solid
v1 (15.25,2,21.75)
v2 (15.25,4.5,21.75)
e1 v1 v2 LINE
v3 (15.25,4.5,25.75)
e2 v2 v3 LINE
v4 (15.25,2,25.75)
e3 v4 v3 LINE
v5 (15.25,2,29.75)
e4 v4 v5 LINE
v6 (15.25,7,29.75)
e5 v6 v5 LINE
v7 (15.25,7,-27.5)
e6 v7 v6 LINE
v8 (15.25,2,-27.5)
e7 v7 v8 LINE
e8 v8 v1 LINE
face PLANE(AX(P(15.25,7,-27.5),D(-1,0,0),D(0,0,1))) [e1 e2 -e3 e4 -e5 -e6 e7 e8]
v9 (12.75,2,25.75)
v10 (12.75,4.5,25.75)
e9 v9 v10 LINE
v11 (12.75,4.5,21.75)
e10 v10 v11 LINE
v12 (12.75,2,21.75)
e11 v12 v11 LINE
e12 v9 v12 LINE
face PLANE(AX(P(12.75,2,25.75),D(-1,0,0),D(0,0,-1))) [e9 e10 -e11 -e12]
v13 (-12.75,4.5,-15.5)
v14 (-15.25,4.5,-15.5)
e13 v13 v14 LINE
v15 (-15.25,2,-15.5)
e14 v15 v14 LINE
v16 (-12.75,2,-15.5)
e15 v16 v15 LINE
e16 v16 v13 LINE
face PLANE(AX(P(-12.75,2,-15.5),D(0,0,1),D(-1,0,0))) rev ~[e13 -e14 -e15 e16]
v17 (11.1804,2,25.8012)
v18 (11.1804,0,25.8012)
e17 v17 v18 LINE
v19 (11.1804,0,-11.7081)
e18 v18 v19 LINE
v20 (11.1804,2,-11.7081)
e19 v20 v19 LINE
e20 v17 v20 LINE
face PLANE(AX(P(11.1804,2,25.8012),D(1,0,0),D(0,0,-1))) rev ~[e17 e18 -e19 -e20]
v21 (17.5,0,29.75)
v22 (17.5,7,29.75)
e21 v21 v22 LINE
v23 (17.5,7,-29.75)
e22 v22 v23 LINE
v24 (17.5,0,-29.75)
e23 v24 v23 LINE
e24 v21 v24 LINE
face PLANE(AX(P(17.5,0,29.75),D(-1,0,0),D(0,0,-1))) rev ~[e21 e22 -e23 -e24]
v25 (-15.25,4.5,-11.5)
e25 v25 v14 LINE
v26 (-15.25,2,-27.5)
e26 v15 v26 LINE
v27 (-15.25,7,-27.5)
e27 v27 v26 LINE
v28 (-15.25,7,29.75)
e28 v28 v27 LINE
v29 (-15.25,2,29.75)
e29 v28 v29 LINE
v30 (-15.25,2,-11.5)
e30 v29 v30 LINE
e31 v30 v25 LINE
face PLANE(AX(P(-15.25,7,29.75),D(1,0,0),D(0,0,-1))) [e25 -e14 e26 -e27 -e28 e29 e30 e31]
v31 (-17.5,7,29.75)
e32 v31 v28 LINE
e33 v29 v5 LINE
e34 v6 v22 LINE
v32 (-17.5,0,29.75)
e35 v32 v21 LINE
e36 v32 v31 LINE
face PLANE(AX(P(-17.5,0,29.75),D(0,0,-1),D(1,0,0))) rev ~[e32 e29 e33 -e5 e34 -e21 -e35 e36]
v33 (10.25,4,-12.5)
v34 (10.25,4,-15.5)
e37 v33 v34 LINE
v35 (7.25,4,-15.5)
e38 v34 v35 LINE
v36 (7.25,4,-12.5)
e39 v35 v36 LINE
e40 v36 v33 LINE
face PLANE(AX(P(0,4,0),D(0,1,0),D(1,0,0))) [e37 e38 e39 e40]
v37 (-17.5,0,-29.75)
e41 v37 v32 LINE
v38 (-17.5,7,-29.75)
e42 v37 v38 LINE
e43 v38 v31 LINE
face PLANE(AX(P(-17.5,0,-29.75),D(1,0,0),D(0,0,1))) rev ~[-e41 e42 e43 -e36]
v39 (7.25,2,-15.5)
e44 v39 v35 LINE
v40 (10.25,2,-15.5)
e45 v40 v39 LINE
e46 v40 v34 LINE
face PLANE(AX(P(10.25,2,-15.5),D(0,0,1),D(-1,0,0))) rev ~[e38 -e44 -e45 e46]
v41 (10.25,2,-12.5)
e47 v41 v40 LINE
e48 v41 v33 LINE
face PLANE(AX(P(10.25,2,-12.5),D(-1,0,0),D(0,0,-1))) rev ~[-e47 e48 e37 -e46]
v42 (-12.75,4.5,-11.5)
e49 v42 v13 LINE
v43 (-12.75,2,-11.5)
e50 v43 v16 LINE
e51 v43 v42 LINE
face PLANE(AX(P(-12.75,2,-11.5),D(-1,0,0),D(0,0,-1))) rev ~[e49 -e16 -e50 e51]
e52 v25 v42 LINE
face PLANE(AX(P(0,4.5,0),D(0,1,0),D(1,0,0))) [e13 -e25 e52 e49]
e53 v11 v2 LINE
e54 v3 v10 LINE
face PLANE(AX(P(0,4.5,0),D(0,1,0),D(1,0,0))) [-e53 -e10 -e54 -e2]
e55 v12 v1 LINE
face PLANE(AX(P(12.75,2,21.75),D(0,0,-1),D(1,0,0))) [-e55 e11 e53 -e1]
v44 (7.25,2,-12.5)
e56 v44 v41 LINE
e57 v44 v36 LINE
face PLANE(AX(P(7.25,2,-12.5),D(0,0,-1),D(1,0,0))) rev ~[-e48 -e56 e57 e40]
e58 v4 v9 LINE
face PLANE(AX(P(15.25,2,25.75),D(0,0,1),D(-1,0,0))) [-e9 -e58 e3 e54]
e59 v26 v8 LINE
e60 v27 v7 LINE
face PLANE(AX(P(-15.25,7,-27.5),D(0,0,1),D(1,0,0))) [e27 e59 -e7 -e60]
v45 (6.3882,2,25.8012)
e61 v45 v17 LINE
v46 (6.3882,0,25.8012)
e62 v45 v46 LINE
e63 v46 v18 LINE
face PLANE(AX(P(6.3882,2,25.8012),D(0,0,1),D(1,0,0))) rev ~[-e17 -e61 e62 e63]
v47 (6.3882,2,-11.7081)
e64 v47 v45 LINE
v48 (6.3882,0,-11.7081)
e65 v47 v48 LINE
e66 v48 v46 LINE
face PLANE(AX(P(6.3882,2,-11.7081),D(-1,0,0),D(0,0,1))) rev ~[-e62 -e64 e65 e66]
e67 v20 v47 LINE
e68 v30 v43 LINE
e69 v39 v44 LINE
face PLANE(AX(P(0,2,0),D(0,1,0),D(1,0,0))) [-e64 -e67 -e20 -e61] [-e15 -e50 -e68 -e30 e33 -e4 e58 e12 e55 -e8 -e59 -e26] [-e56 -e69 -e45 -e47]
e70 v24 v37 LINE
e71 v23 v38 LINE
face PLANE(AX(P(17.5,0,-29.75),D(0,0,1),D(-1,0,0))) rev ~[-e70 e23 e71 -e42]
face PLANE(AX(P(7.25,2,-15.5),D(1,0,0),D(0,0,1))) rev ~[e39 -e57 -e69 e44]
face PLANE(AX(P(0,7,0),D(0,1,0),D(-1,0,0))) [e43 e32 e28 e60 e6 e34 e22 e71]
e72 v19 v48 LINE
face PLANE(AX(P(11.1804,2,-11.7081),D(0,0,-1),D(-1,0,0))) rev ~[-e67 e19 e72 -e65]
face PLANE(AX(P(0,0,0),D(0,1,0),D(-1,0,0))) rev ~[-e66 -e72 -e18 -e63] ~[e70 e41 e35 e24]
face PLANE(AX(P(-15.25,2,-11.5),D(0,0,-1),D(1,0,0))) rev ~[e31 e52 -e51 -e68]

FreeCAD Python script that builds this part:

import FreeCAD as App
import Part
import Sketcher
Q = App.Units.Quantity

doc = App.newDocument("Part")
params = doc.addObject("Spreadsheet::Sheet", "Params")
for row, (alias, value) in enumerate([
    ("sketch1_width", "35 mm"),
    ("sketch1_height", "59.5 mm"),
    ("pad1_length", "7 mm"),
    ("sketch2_width", "30.5 mm"),
    ("sketch2_height", "57.25 mm"),
    ("pocket1_length", "5 mm"),
    ("sketch3_width", "3 mm"),
    ("pad2_length", "2 mm"),
    ("sketch4_height", "4 mm"),
    ("sketch4_width", "2.5 mm"),
    ("pad3_length", "2.5 mm"),
], start=1):
    params.set(f"A{row}", alias)
    params.set(f"B{row}", "=" + value)
    params.setAlias(f"B{row}", alias)

body = doc.addObject("PartDesign::Body", "Body")

# Sketch on XZ plane
sketch1 = body.newObject("Sketcher::SketchObject", "Sketch")
sketch1.AttachmentSupport = (doc.getObject("XZ_Plane"), [""])
sketch1.MapMode = "FlatFace"
sketch1.addGeometry([
    Part.LineSegment(App.Vector(18, 30, 0), App.Vector(18, -30, 0)),
    Part.LineSegment(App.Vector(18, -30, 0), App.Vector(-18, -30, 0)),
    Part.LineSegment(App.Vector(-18, -30, 0), App.Vector(-18, 30, 0)),
    Part.LineSegment(App.Vector(-18, 30, 0), App.Vector(18, 30, 0)),
], False)
sketch1.addConstraint([
    Sketcher.Constraint("Coincident", 0, 2, 1, 1),
    Sketcher.Constraint("Coincident", 1, 2, 2, 1),
    Sketcher.Constraint("Coincident", 2, 2, 3, 1),
    Sketcher.Constraint("Coincident", 3, 2, 0, 1),
    Sketcher.Constraint("Vertical", 0),
    Sketcher.Constraint("Horizontal", 1),
    Sketcher.Constraint("Vertical", 2),
    Sketcher.Constraint("Horizontal", 3),
    Sketcher.Constraint("Symmetric", 0, 2, 2, 2, -1, 1),
    Sketcher.Constraint("DistanceX", 1, 2, 1, 1, Q("35 mm")),
    Sketcher.Constraint("DistanceY", 0, 2, 0, 1, Q("59.5 mm")),
])
sketch1.setExpression("Constraints[9]", "Params.sketch1_width")
sketch1.setExpression("Constraints[10]", "Params.sketch1_height")
pad1 = body.newObject("PartDesign::Pad", "Pad")
pad1.Profile = sketch1
pad1.setExpression("Length", "Params.pad1_length")
pad1.Reversed = True

# Sketch on XZ plane
sketch2 = body.newObject("Sketcher::SketchObject", "Sketch001")
sketch2.AttachmentSupport = (doc.getObject("XZ_Plane"), [""])
sketch2.MapMode = "FlatFace"
sketch2.AttachmentOffset = App.Placement(App.Vector(0, 0, -7), App.Rotation())
sketch2.addGeometry([
    Part.LineSegment(App.Vector(-15, -28, 0), App.Vector(-15, 30, 0)),
    Part.LineSegment(App.Vector(-15, 30, 0), App.Vector(15, 30, 0)),
    Part.LineSegment(App.Vector(15, 30, 0), App.Vector(15, -28, 0)),
    Part.LineSegment(App.Vector(15, -28, 0), App.Vector(-15, -28, 0)),
], False)
sketch2.addConstraint([
    Sketcher.Constraint("Coincident", 0, 2, 1, 1),
    Sketcher.Constraint("Coincident", 1, 2, 2, 1),
    Sketcher.Constraint("Coincident", 2, 2, 3, 1),
    Sketcher.Constraint("Coincident", 3, 2, 0, 1),
    Sketcher.Constraint("Vertical", 0),
    Sketcher.Constraint("Horizontal", 1),
    Sketcher.Constraint("Vertical", 2),
    Sketcher.Constraint("Horizontal", 3),
    Sketcher.Constraint("DistanceX", 1, 1, 1, 2, Q("30.5 mm")),
    Sketcher.Constraint("DistanceY", 0, 1, 0, 2, Q("57.25 mm")),
    Sketcher.Constraint("DistanceY", 2, 2, -1, 1, Q("27.5 mm")),
    Sketcher.Constraint("DistanceX", 0, 2, -1, 1, Q("15.25 mm")),
])
sketch2.setExpression("Constraints[8]", "Params.sketch2_width")
sketch2.setExpression("Constraints[9]", "Params.sketch2_height")
pocket1 = body.newObject("PartDesign::Pocket", "Pocket")
pocket1.Profile = sketch2
pocket1.setExpression("Length", "Params.pocket1_length")
pocket1.Reversed = True

# Sketch on XZ plane
sketch3 = body.newObject("Sketcher::SketchObject", "Sketch002")
sketch3.AttachmentSupport = (doc.getObject("XZ_Plane"), [""])
sketch3.MapMode = "FlatFace"
sketch3.AttachmentOffset = App.Placement(App.Vector(0, 0, -2), App.Rotation())
sketch3.addGeometry([
    Part.LineSegment(App.Vector(10.2, -12.5, 0), App.Vector(10.2, -15.5, 0)),
    Part.LineSegment(App.Vector(10.2, -15.5, 0), App.Vector(7.2, -15.5, 0)),
    Part.LineSegment(App.Vector(7.2, -15.5, 0), App.Vector(7.2, -12.5, 0)),
    Part.LineSegment(App.Vector(7.2, -12.5, 0), App.Vector(10.2, -12.5, 0)),
], False)
sketch3.addConstraint([
    Sketcher.Constraint("Coincident", 0, 2, 1, 1),
    Sketcher.Constraint("Coincident", 1, 2, 2, 1),
    Sketcher.Constraint("Coincident", 2, 2, 3, 1),
    Sketcher.Constraint("Coincident", 3, 2, 0, 1),
    Sketcher.Constraint("Vertical", 0),
    Sketcher.Constraint("Horizontal", 1),
    Sketcher.Constraint("Vertical", 2),
    Sketcher.Constraint("Horizontal", 3),
    Sketcher.Constraint("Equal", 3, 0),
    Sketcher.Constraint("DistanceX", 1, 2, 1, 1, Q("3 mm")),
    Sketcher.Constraint("DistanceY", 0, 2, -1, 1, Q("15.5 mm")),
    Sketcher.Constraint("DistanceX", -1, 1, 0, 2, Q("10.25 mm")),
])
sketch3.setExpression("Constraints[9]", "Params.sketch3_width")
pad2 = body.newObject("PartDesign::Pad", "Pad001")
pad2.Profile = sketch3
pad2.setExpression("Length", "Params.pad2_length")
pad2.Reversed = True

# Sketch on XZ plane
sketch4 = body.newObject("Sketcher::SketchObject", "Sketch003")
sketch4.AttachmentSupport = (doc.getObject("XZ_Plane"), [""])
sketch4.MapMode = "FlatFace"
sketch4.AttachmentOffset = App.Placement(App.Vector(0, 0, -2), App.Rotation())
sketch4.addGeometry([
    Part.LineSegment(App.Vector(-12.8, -15.5, 0), App.Vector(-15.2, -15.5, 0)),  # 0
    Part.LineSegment(App.Vector(-15.2, -15.5, 0), App.Vector(-15.2, -11.5, 0)),  # 1
    Part.LineSegment(App.Vector(-15.2, -11.5, 0), App.Vector(-12.8, -11.5, 0)),  # 2
    Part.LineSegment(App.Vector(-12.8, -11.5, 0), App.Vector(-12.8, -15.5, 0)),  # 3
    Part.LineSegment(App.Vector(15.2, 25.8, 0), App.Vector(15.2, 21.8, 0)),  # 4
    Part.LineSegment(App.Vector(15.2, 21.8, 0), App.Vector(12.8, 21.8, 0)),  # 5
    Part.LineSegment(App.Vector(12.8, 21.8, 0), App.Vector(12.8, 25.8, 0)),  # 6
    Part.LineSegment(App.Vector(12.8, 25.8, 0), App.Vector(15.2, 25.8, 0)),  # 7
], False)
sketch4.addConstraint([
    Sketcher.Constraint("Coincident", 0, 2, 1, 1),
    Sketcher.Constraint("Coincident", 1, 2, 2, 1),
    Sketcher.Constraint("Coincident", 2, 2, 3, 1),
    Sketcher.Constraint("Coincident", 3, 2, 0, 1),
    Sketcher.Constraint("Coincident", 4, 2, 5, 1),
    Sketcher.Constraint("Coincident", 5, 2, 6, 1),
    Sketcher.Constraint("Coincident", 6, 2, 7, 1),
    Sketcher.Constraint("Coincident", 7, 2, 4, 1),
    Sketcher.Constraint("Horizontal", 0),
    Sketcher.Constraint("Vertical", 1),
    Sketcher.Constraint("Horizontal", 2),
    Sketcher.Constraint("Vertical", 3),
    Sketcher.Constraint("Vertical", 4),
    Sketcher.Constraint("Horizontal", 5),
    Sketcher.Constraint("Vertical", 6),
    Sketcher.Constraint("Horizontal", 7),
    Sketcher.Constraint("Equal", 2, 5),
    Sketcher.Constraint("Equal", 3, 4),
    Sketcher.Constraint("DistanceY", 1, 1, 1, 2, Q("4 mm")),
    Sketcher.Constraint("DistanceX", 0, 2, 0, 1, Q("2.5 mm")),
    Sketcher.Constraint("DistanceX", 2, 2, 4, 2, Q("28 mm")),
    Sketcher.Constraint("DistanceY", 0, 2, -1, 1, Q("15.5 mm")),
    Sketcher.Constraint("DistanceX", 0, 2, -1, 1, Q("15.25 mm")),
    Sketcher.Constraint("DistanceY", -1, 1, 4, 2, Q("21.75 mm")),
])
sketch4.setExpression("Constraints[18]", "Params.sketch4_height")
sketch4.setExpression("Constraints[19]", "Params.sketch4_width")
pad3 = body.newObject("PartDesign::Pad", "Pad002")
pad3.Profile = sketch4
pad3.setExpression("Length", "Params.pad3_length")
pad3.Reversed = True

# Sketch on XZ plane
sketch5 = body.newObject("Sketcher::SketchObject", "Sketch004")
sketch5.AttachmentSupport = (doc.getObject("XZ_Plane"), [""])
sketch5.MapMode = "FlatFace"
sketch5.AttachmentOffset = App.Placement(App.Vector(0, 0, -2), App.Rotation())
sketch5.addGeometry([
    Part.LineSegment(App.Vector(11.2, 25.8, 0), App.Vector(11.2, -11.7, 0)),
    Part.LineSegment(App.Vector(11.2, -11.7, 0), App.Vector(6.4, -11.7, 0)),
    Part.LineSegment(App.Vector(6.4, -11.7, 0), App.Vector(6.4, 25.8, 0)),
    Part.LineSegment(App.Vector(6.4, 25.8, 0), App.Vector(11.2, 25.8, 0)),
], False)
sketch5.addConstraint([
    Sketcher.Constraint("Coincident", 0, 2, 1, 1),
    Sketcher.Constraint("Coincident", 1, 2, 2, 1),
    Sketcher.Constraint("Coincident", 2, 2, 3, 1),
    Sketcher.Constraint("Coincident", 3, 2, 0, 1),
    Sketcher.Constraint("Vertical", 0),
    Sketcher.Constraint("Horizontal", 1),
    Sketcher.Constraint("Vertical", 2),
    Sketcher.Constraint("Horizontal", 3),
    Sketcher.Constraint("DistanceX", 1, 2, 1, 1, Q("4.7922 mm")),
    Sketcher.Constraint("DistanceY", 0, 2, 0, 1, Q("37.5093 mm")),
    Sketcher.Constraint("DistanceY", 0, 2, -1, 1, Q("11.708 mm")),
    Sketcher.Constraint("DistanceX", -1, 1, 0, 2, Q("11.1804 mm")),
])
pocket2 = body.newObject("PartDesign::Pocket", "Pocket001")
pocket2.Profile = sketch5
pocket2.Type = "ThroughAll"
pocket2.Reversed = True

doc.recompute()
